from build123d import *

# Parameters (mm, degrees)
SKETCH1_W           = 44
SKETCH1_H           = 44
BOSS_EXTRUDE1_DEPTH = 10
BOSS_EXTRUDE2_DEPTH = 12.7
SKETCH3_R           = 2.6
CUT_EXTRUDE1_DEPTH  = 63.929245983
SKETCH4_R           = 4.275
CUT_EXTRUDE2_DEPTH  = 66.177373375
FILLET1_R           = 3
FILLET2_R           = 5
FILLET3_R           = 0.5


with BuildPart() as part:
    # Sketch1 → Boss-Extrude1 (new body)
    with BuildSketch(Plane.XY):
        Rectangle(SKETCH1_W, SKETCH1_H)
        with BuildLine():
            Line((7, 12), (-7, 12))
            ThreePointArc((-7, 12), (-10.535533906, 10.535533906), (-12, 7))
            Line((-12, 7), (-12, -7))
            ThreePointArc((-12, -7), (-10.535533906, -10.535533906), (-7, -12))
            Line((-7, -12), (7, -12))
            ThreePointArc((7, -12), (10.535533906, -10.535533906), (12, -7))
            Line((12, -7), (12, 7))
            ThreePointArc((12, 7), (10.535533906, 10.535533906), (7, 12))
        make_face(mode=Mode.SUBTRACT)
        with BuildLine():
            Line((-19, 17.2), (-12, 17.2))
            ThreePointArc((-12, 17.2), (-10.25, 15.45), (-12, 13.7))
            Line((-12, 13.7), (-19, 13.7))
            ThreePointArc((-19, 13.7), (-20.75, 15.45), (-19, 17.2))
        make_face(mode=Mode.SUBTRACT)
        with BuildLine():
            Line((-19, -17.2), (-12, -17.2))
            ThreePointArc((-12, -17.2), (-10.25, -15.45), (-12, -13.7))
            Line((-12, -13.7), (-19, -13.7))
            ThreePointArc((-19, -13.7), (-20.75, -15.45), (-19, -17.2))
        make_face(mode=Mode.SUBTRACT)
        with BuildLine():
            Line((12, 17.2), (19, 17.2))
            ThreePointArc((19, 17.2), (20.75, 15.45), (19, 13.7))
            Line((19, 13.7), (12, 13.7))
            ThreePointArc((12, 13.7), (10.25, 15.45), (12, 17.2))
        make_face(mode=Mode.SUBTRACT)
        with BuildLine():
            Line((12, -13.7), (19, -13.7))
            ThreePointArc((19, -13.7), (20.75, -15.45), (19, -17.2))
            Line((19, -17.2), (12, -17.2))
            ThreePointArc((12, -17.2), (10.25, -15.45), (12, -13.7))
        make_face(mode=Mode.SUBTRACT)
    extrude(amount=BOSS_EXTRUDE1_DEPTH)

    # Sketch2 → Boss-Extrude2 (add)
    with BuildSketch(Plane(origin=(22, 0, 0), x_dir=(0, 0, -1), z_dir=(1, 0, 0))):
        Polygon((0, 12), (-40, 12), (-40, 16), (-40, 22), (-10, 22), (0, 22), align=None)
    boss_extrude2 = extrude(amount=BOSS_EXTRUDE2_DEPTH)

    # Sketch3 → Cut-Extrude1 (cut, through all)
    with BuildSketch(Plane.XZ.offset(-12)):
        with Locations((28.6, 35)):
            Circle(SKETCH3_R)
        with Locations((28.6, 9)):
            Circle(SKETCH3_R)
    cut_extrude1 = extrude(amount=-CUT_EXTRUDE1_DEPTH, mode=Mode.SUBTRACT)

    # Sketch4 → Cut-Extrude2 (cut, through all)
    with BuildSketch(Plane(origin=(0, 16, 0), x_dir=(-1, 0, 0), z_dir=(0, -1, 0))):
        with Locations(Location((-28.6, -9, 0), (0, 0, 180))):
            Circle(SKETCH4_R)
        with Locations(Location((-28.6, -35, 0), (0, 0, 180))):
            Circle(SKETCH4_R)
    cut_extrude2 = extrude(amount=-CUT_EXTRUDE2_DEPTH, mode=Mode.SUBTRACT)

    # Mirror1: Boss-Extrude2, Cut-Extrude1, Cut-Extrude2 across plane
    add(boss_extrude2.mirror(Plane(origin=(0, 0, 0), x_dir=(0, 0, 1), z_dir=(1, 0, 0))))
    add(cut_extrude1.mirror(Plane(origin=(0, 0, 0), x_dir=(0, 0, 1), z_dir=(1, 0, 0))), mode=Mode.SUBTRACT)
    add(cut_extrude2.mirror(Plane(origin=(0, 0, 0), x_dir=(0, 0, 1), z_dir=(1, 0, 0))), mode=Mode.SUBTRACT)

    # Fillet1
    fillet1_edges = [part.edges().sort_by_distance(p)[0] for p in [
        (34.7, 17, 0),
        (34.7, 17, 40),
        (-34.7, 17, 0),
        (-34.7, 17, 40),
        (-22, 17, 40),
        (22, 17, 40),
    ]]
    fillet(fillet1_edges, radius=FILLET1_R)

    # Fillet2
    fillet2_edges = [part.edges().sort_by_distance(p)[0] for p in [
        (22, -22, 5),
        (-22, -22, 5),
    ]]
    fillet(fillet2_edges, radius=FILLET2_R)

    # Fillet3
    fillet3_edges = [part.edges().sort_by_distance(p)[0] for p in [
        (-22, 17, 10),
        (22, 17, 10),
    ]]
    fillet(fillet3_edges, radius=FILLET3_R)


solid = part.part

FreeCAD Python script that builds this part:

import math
import FreeCAD as App
import Part
import Sketcher

V = App.Vector


def edges_at(feature, points):
    """Names of the edges that pass closest to the given points."""
    edges = feature.Shape.Edges
    near = lambda p: min(range(len(edges)), key=lambda i: edges[i].distToShape(Part.Vertex(*p))[0])
    return sorted({f"Edge{near(p) + 1}" for p in points})


def add_polygon(sketch, points):
    """Adds a closed chain of lines whose ends are joined by coincident constraints."""
    first, n = sketch.GeometryCount, len(points)
    for a, b in zip(points, points[1:] + points[:1]):
        sketch.addGeometry(Part.LineSegment(App.Vector(*a, 0), App.Vector(*b, 0)), False)
    for i in range(n):
        sketch.addConstraint(Sketcher.Constraint("Coincident", first + i, 2, first + (i + 1) % n, 1))

doc = App.newDocument("Part")
body = doc.addObject("PartDesign::Body", "Body")

# Sketch on XY plane
sketch1 = doc.addObject("Sketcher::SketchObject", "Sketch")
body.addObject(sketch1)
sketch1.AttachmentSupport = (doc.XY_Plane, [""])
sketch1.MapMode = "FlatFace"
add_polygon(sketch1, [(-22, 22), (-22, -22), (22, -22), (22, 22)])  # lines 0-3
sketch1.addGeometry(Part.LineSegment(V(-12, -17.2, 0), V(-19, -17.2, 0)), False)  # 4
sketch1.addGeometry(Part.ArcOfCircle(Part.Circle(V(-19, -15.45, 0), V(0, 0, 1), 1.75), math.radians(90), math.radians(270)), False)  # 5
sketch1.addGeometry(Part.LineSegment(V(-19, -13.7, 0), V(-12, -13.7, 0)), False)  # 6
sketch1.addGeometry(Part.ArcOfCircle(Part.Circle(V(-12, -15.45, 0), V(0, 0, 1), 1.75), math.radians(-90), math.radians(90)), False)  # 7
sketch1.addGeometry(Part.ArcOfCircle(Part.Circle(V(12, -15.45, 0), V(0, 0, 1), 1.75), math.radians(90), math.radians(270)), False)  # 8
sketch1.addGeometry(Part.LineSegment(V(12, -13.7, 0), V(19, -13.7, 0)), False)  # 9
sketch1.addGeometry(Part.ArcOfCircle(Part.Circle(V(19, -15.45, 0), V(0, 0, 1), 1.75), math.radians(-90), math.radians(90)), False)  # 10
sketch1.addGeometry(Part.LineSegment(V(19, -17.2, 0), V(12, -17.2, 0)), False)  # 11
sketch1.addGeometry(Part.ArcOfCircle(Part.Circle(V(-19, 15.45, 0), V(0, 0, 1), 1.75), math.radians(90), math.radians(270)), False)  # 12
sketch1.addGeometry(Part.LineSegment(V(-19, 17.2, 0), V(-12, 17.2, 0)), False)  # 13
sketch1.addGeometry(Part.ArcOfCircle(Part.Circle(V(-12, 15.45, 0), V(0, 0, 1), 1.75), math.radians(-90), math.radians(90)), False)  # 14
sketch1.addGeometry(Part.LineSegment(V(-12, 13.7, 0), V(-19, 13.7, 0)), False)  # 15
sketch1.addGeometry(Part.LineSegment(V(-7, 12, 0), V(7, 12, 0)), False)  # 16
sketch1.addGeometry(Part.ArcOfCircle(Part.Circle(V(7, 7, 0), V(0, 0, 1), 5), math.radians(0), math.radians(90)), False)  # 17
sketch1.addGeometry(Part.LineSegment(V(12, 7, 0), V(12, -7, 0)), False)  # 18
sketch1.addGeometry(Part.ArcOfCircle(Part.Circle(V(7, -7, 0), V(0, 0, 1), 5), math.radians(-90), math.radians(0)), False)  # 19
sketch1.addGeometry(Part.LineSegment(V(7, -12, 0), V(-7, -12, 0)), False)  # 20
sketch1.addGeometry(Part.ArcOfCircle(Part.Circle(V(-7, -7, 0), V(0, 0, 1), 5), math.radians(180), math.radians(270)), False)  # 21
sketch1.addGeometry(Part.LineSegment(V(-12, -7, 0), V(-12, 7, 0)), False)  # 22
sketch1.addGeometry(Part.ArcOfCircle(Part.Circle(V(-7, 7, 0), V(0, 0, 1), 5), math.radians(90), math.radians(180)), False)  # 23
sketch1.addGeometry(Part.ArcOfCircle(Part.Circle(V(12, 15.45, 0), V(0, 0, 1), 1.75), math.radians(90), math.radians(270)), False)  # 24
sketch1.addGeometry(Part.LineSegment(V(12, 17.2, 0), V(19, 17.2, 0)), False)  # 25
sketch1.addGeometry(Part.ArcOfCircle(Part.Circle(V(19, 15.45, 0), V(0, 0, 1), 1.75), math.radians(-90), math.radians(90)), False)  # 26
sketch1.addGeometry(Part.LineSegment(V(19, 13.7, 0), V(12, 13.7, 0)), False)  # 27
sketch1.addConstraint(Sketcher.Constraint("Tangent", 4, 2, 5, 2))
sketch1.addConstraint(Sketcher.Constraint("Tangent", 5, 1, 6, 1))
sketch1.addConstraint(Sketcher.Constraint("Tangent", 6, 2, 7, 2))
sketch1.addConstraint(Sketcher.Constraint("Tangent", 7, 1, 4, 1))
sketch1.addConstraint(Sketcher.Constraint("Tangent", 8, 1, 9, 1))
sketch1.addConstraint(Sketcher.Constraint("Tangent", 9, 2, 10, 2))
sketch1.addConstraint(Sketcher.Constraint("Tangent", 10, 1, 11, 1))
sketch1.addConstraint(Sketcher.Constraint("Tangent", 11, 2, 8, 2))
sketch1.addConstraint(Sketcher.Constraint("Tangent", 12, 1, 13, 1))
sketch1.addConstraint(Sketcher.Constraint("Tangent", 13, 2, 14, 2))
sketch1.addConstraint(Sketcher.Constraint("Tangent", 14, 1, 15, 1))
sketch1.addConstraint(Sketcher.Constraint("Tangent", 15, 2, 12, 2))
sketch1.addConstraint(Sketcher.Constraint("Tangent", 16, 2, 17, 2))
sketch1.addConstraint(Sketcher.Constraint("Tangent", 17, 1, 18, 1))
sketch1.addConstraint(Sketcher.Constraint("Tangent", 18, 2, 19, 2))
sketch1.addConstraint(Sketcher.Constraint("Tangent", 19, 1, 20, 1))
sketch1.addConstraint(Sketcher.Constraint("Tangent", 20, 2, 21, 2))
sketch1.addConstraint(Sketcher.Constraint("Tangent", 21, 1, 22, 1))
sketch1.addConstraint(Sketcher.Constraint("Tangent", 22, 2, 23, 2))
sketch1.addConstraint(Sketcher.Constraint("Tangent", 23, 1, 16, 1))
sketch1.addConstraint(Sketcher.Constraint("Tangent", 24, 1, 25, 1))
sketch1.addConstraint(Sketcher.Constraint("Tangent", 25, 2, 26, 2))
sketch1.addConstraint(Sketcher.Constraint("Tangent", 26, 1, 27, 1))
sketch1.addConstraint(Sketcher.Constraint("Tangent", 27, 2, 24, 2))
sketch1.addConstraint(Sketcher.Constraint("Vertical", 0))
sketch1.addConstraint(Sketcher.Constraint("Horizontal", 1))
sketch1.addConstraint(Sketcher.Constraint("Vertical", 2))
sketch1.addConstraint(Sketcher.Constraint("Horizontal", 3))
sketch1.addConstraint(Sketcher.Constraint("Horizontal", 4))
sketch1.addConstraint(Sketcher.Constraint("Horizontal", 6))
sketch1.addConstraint(Sketcher.Constraint("Horizontal", 9))
sketch1.addConstraint(Sketcher.Constraint("Horizontal", 11))
sketch1.addConstraint(Sketcher.Constraint("Horizontal", 13))
sketch1.addConstraint(Sketcher.Constraint("Horizontal", 15))
sketch1.addConstraint(Sketcher.Constraint("Horizontal", 16))
sketch1.addConstraint(Sketcher.Constraint("Vertical", 18))
sketch1.addConstraint(Sketcher.Constraint("Horizontal", 20))
sketch1.addConstraint(Sketcher.Constraint("Vertical", 22))
sketch1.addConstraint(Sketcher.Constraint("Horizontal", 25))
sketch1.addConstraint(Sketcher.Constraint("Horizontal", 27))
sketch1.addConstraint(Sketcher.Constraint("Equal", 7, 8))
sketch1.addConstraint(Sketcher.Constraint("Equal", 10, 12))
sketch1.addConstraint(Sketcher.Constraint("Equal", 17, 19))
sketch1.addConstraint(Sketcher.Constraint("Equal", 19, 21))
sketch1.addConstraint(Sketcher.Constraint("Equal", 21, 23))
sketch1.addConstraint(Sketcher.Constraint("Equal", 14, 24))
sketch1.addConstraint(Sketcher.Constraint("Symmetric", 10, 3, 12, 3, -1, 1))
sketch1.addConstraint(Sketcher.Constraint("Symmetric", 17, 3, 21, 3, -1, 1))
sketch1.addConstraint(Sketcher.Constraint("Symmetric", 7, 3, 24, 3, -1, 1))
sketch1.addConstraint(Sketcher.Constraint("Symmetric", 0, 2, 2, 2, -1, 1))
sketch1.addConstraint(Sketcher.Constraint("Symmetric", 7, 3, 8, 3, -2))
sketch1.addConstraint(Sketcher.Constraint("Vertical", 5, 3, 12, 3))
sketch1.addConstraint(Sketcher.Constraint("Vertical", 7, 3, 14, 3))
sketch1.addConstraint(Sketcher.Constraint("Vertical", 10, 3, 26, 3))
sketch1.addConstraint(Sketcher.Constraint("Vertical", 11, 2, 17, 1))
sketch1.addConstraint(Sketcher.Constraint("Equal", 3, 0))
sketch1.addConstraint(Sketcher.Constraint("Equal", 20, 18))
sketch1.addConstraint(Sketcher.Constraint("Radius", 17, 5.0))
sketch1.addConstraint(Sketcher.Constraint("DistanceX", 1, 1, 1, 2, 44.0))
sketch1.addConstraint(Sketcher.Constraint("DistanceX", 4, 2, 4, 1, 7.0))
sketch1.addConstraint(Sketcher.Constraint("DistanceX", 16, 1, 16, 2, 14.0))
sketch1.addConstraint(Sketcher.Constraint("Radius", 5, 1.75))
sketch1.addConstraint(Sketcher.Constraint("DistanceY", 4, 2, -1, 1, 17.2))
pad1 = doc.addObject("PartDesign::Pad", "Pad")
body.addObject(pad1)
pad1.Profile = sketch1
pad1.Length = 10

# Sketch on YZ plane
sketch2 = doc.addObject("Sketcher::SketchObject", "Sketch001")
body.addObject(sketch2)
sketch2.AttachmentSupport = (doc.YZ_Plane, [""])
sketch2.MapMode = "FlatFace"
sketch2.AttachmentOffset = App.Placement(V(0, 0, 22), App.Rotation())
add_polygon(sketch2, [(12, 40), (12, 0), (22, 0), (22, 40)])  # lines 0-3
sketch2.addConstraint(Sketcher.Constraint("Vertical", 0))
sketch2.addConstraint(Sketcher.Constraint("Horizontal", 1))
sketch2.addConstraint(Sketcher.Constraint("Vertical", 2))
sketch2.addConstraint(Sketcher.Constraint("Horizontal", 3))
sketch2.addConstraint(Sketcher.Constraint("PointOnObject", 0, 2, -1))
sketch2.addConstraint(Sketcher.Constraint("DistanceX", 1, 1, 1, 2, 10.0))
sketch2.addConstraint(Sketcher.Constraint("DistanceY", 0, 2, 0, 1, 40.0))
sketch2.addConstraint(Sketcher.Constraint("DistanceX", -1, 1, 0, 2, 12.0))
pad2 = doc.addObject("PartDesign::Pad", "Pad001")
body.addObject(pad2)
pad2.Profile = sketch2
pad2.Length = 12.7

# Sketch on XZ plane
sketch3 = doc.addObject("Sketcher::SketchObject", "Sketch002")
body.addObject(sketch3)
sketch3.AttachmentSupport = (doc.XZ_Plane, [""])
sketch3.MapMode = "FlatFace"
sketch3.AttachmentOffset = App.Placement(V(0, 0, -12), App.Rotation())
sketch3.addGeometry(Part.Circle(V(28.6, 35, 0), V(0, 0, 1), 2.6), False)
sketch3.addGeometry(Part.Circle(V(28.6, 9, 0), V(0, 0, 1), 2.6), False)
sketch3.addConstraint(Sketcher.Constraint("Equal", 0, 1))
sketch3.addConstraint(Sketcher.Constraint("Vertical", 0, 3, 1, 3))
sketch3.addConstraint(Sketcher.Constraint("Diameter", 0, 5.2))
sketch3.addConstraint(Sketcher.Constraint("DistanceY", -1, 1, 0, 3, 35.0))
sketch3.addConstraint(Sketcher.Constraint("DistanceY", -1, 1, 1, 3, 9.0))
sketch3.addConstraint(Sketcher.Constraint("DistanceX", -1, 1, 0, 3, 28.6))
pocket1 = doc.addObject("PartDesign::Pocket", "Pocket")
body.addObject(pocket1)
pocket1.Profile = sketch3
pocket1.Type = "ThroughAll"

# Sketch on XZ plane
sketch4 = doc.addObject("Sketcher::SketchObject", "Sketch003")
body.addObject(sketch4)
sketch4.AttachmentSupport = (doc.XZ_Plane, [""])
sketch4.MapMode = "FlatFace"
sketch4.AttachmentOffset = App.Placement(V(0, 0, -16), App.Rotation())
sketch4.addGeometry(Part.Circle(V(28.6, 9, 0), V(0, 0, 1), 4.275), False)
sketch4.addGeometry(Part.Circle(V(28.6, 35, 0), V(0, 0, 1), 4.275), False)
sketch4.addConstraint(Sketcher.Constraint("Equal", 0, 1))
sketch4.addConstraint(Sketcher.Constraint("Vertical", 0, 3, 1, 3))
sketch4.addConstraint(Sketcher.Constraint("Diameter", 0, 8.55))
sketch4.addConstraint(Sketcher.Constraint("DistanceY", -1, 1, 0, 3, 9.0))
sketch4.addConstraint(Sketcher.Constraint("DistanceY", -1, 1, 1, 3, 35.0))
sketch4.addConstraint(Sketcher.Constraint("DistanceX", -1, 1, 0, 3, 28.6))
pocket2 = doc.addObject("PartDesign::Pocket", "Pocket001")
body.addObject(pocket2)
pocket2.Profile = sketch4
pocket2.Type = "ThroughAll"
doc.recompute()

mirrored = doc.addObject("PartDesign::Mirrored", "Mirrored")
body.addObject(mirrored)
mirrored.Originals = [pad2, pocket1, pocket2]
mirrored.MirrorPlane = (doc.YZ_Plane, [""])
body.Tip = mirrored
doc.recompute()

fillet = doc.addObject("PartDesign::Fillet", "Fillet")
body.addObject(fillet)
fillet.Base = (mirrored, edges_at(mirrored, [
    (34.7, 17, 0),
    (34.7, 17, 40),
    (-34.7, 17, 0),
    (-34.7, 17, 40),
    (-22, 17, 40),
    (22, 17, 40),
]))
fillet.Radius = 3
doc.recompute()

fillet2 = doc.addObject("PartDesign::Fillet", "Fillet001")
body.addObject(fillet2)
fillet2.Base = (fillet, edges_at(fillet, [(22, -22, 5), (-22, -22, 5)]))
fillet2.Radius = 5
doc.recompute()

fillet3 = doc.addObject("PartDesign::Fillet", "Fillet002")
body.addObject(fillet3)
fillet3.Base = (fillet2, edges_at(fillet2, [(-22, 17, 10), (22, 17, 10)]))
fillet3.Radius = 0.5

doc.recompute()
